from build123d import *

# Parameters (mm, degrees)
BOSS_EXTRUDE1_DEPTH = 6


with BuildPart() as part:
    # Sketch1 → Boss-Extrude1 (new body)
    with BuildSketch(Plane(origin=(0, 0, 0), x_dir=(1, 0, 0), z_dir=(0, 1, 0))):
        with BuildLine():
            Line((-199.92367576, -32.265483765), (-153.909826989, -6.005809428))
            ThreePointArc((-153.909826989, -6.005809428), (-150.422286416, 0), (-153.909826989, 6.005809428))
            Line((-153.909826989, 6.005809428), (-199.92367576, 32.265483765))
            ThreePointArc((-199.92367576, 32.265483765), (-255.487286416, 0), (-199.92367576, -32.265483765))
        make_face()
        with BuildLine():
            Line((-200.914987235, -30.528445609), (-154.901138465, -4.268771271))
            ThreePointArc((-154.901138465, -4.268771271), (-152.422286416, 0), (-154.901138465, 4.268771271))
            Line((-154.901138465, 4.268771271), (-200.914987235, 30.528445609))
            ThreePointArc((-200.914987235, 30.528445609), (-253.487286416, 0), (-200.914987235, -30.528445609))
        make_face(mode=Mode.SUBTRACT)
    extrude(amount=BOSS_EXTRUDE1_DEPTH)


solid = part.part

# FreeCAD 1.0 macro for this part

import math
import FreeCAD as App
import Part
import Sketcher

V = App.Vector

doc = App.newDocument("Part")
body = doc.addObject("PartDesign::Body", "Body")

sketch1 = body.newObject("Sketcher::SketchObject", "Sketch")
sketch1.AttachmentSupport = (doc.getObject("XZ_Plane"), [""])
sketch1.MapMode = "FlatFace"
sketch1.addGeometry([
    Part.LineSegment(V(-199.923676, 32.265484, 0), V(-153.909827, 6.005809, 0)),
    Part.ArcOfCircle(Part.Circle(V(-157.337286, 0, 0), V(0, 0, 1), 6.915), math.radians(-60.287), math.radians(60.287)),
    Part.LineSegment(V(-153.909827, -6.005809, 0), V(-199.923676, -32.265484, 0)),
    Part.ArcOfCircle(Part.Circle(V(-218.337286, 0, 0), V(0, 0, 1), 37.15), math.radians(60.287), math.radians(299.713)),
    Part.LineSegment(V(-154.901138, 4.268771, 0), V(-200.914987, 30.528446, 0)),
    Part.ArcOfCircle(Part.Circle(V(-218.337286, 0, 0), V(0, 0, 1), 35.15), math.radians(60.287), math.radians(299.713)),
    Part.LineSegment(V(-200.914987, -30.528446, 0), V(-154.901138, -4.268771, 0)),
    Part.ArcOfCircle(Part.Circle(V(-157.337286, 0, 0), V(0, 0, 1), 4.915), math.radians(-60.287), math.radians(60.287)),
], False)
sketch1.addConstraint([
    Sketcher.Constraint("Tangent", 0, 2, 1, 2),
    Sketcher.Constraint("Tangent", 1, 1, 2, 1),
    Sketcher.Constraint("Tangent", 2, 2, 3, 2),
    Sketcher.Constraint("Tangent", 3, 1, 0, 1),
    Sketcher.Constraint("Tangent", 4, 2, 5, 1),
    Sketcher.Constraint("Tangent", 5, 2, 6, 1),
    Sketcher.Constraint("Tangent", 6, 2, 7, 1),
    Sketcher.Constraint("Tangent", 7, 2, 4, 1),
    Sketcher.Constraint("Coincident", 5, 3, 3, 3),
    Sketcher.Constraint("Coincident", 7, 3, 1, 3),
    Sketcher.Constraint("Symmetric", 0, 2, 1, 1, -1),
    Sketcher.Constraint("Parallel", 0, 4),
    Sketcher.Constraint("Radius", 3, 37.15),
    Sketcher.Constraint("Radius", 5, 35.15),
    Sketcher.Constraint("Radius", 1, 6.915),
    Sketcher.Constraint("DistanceX", 3, 3, 1, 3, 61.0),
    Sketcher.Constraint("DistanceX", 6, 2, -1, 1, 154.901138),
])
pad1 = body.newObject("PartDesign::Pad", "Pad")
pad1.Profile = sketch1
pad1.Length = 6
pad1.Reversed = True

doc.recompute()
